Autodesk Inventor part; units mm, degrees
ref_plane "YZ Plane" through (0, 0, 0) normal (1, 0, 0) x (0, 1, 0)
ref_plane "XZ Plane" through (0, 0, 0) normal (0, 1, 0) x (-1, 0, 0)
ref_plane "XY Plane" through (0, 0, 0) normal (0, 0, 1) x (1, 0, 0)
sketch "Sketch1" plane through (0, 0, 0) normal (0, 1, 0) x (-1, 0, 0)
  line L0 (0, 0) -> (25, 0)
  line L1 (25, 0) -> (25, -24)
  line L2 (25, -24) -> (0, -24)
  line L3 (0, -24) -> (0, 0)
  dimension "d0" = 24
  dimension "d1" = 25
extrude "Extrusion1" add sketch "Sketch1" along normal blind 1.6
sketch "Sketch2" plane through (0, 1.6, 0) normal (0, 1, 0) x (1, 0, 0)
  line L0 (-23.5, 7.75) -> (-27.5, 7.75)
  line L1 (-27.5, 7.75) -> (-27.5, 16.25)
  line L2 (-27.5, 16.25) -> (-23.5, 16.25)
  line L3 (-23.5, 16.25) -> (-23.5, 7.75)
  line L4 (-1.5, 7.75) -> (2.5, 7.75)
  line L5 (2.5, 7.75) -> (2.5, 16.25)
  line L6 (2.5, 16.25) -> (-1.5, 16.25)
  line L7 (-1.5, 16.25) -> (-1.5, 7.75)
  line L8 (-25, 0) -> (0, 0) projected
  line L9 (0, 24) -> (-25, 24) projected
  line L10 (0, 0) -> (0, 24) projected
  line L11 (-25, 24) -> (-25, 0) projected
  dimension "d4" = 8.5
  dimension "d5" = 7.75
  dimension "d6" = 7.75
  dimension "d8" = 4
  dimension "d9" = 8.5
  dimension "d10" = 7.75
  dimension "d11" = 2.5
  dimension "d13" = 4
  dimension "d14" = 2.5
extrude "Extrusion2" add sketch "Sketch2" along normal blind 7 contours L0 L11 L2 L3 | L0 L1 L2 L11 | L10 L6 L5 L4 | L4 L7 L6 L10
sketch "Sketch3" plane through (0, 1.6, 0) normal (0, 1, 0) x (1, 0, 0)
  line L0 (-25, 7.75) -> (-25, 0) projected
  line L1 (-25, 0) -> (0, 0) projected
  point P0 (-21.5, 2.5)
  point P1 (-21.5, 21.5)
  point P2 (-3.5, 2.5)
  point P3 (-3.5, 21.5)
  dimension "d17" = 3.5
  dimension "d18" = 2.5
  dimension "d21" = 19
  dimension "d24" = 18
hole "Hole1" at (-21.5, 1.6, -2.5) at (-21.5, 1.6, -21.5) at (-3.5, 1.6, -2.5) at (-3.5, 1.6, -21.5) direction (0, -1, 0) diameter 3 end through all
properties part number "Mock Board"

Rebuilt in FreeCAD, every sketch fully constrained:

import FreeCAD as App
import Part
import Sketcher
Q = App.Units.Quantity


def add_polygon(sketch, points):
    """Adds a closed chain of lines whose ends are joined by coincident constraints."""
    first, n = sketch.GeometryCount, len(points)
    for a, b in zip(points, points[1:] + points[:1]):
        sketch.addGeometry(Part.LineSegment(App.Vector(*a, 0), App.Vector(*b, 0)), False)
    for i in range(n):
        sketch.addConstraint(Sketcher.Constraint("Coincident", first + i, 2, first + (i + 1) % n, 1))

doc = App.newDocument("Part")
body = doc.addObject("PartDesign::Body", "Body")

# Sketch on XZ plane
sketch1 = doc.addObject("Sketcher::SketchObject", "Sketch")
body.addObject(sketch1)
sketch1.AttachmentSupport = (doc.XZ_Plane, [""])
sketch1.MapMode = "FlatFace"
add_polygon(sketch1, [(-25, 0), (0, 0), (0, -24), (-25, -24)])  # lines 0-3
sketch1.addConstraint([
    Sketcher.Constraint("Horizontal", 0),
    Sketcher.Constraint("Vertical", 1),
    Sketcher.Constraint("Horizontal", 2),
    Sketcher.Constraint("Vertical", 3),
    Sketcher.Constraint("Coincident", 0, 2, -1, 1),
    Sketcher.Constraint("DistanceX", 0, 1, 0, 2, Q("25 mm")),
    Sketcher.Constraint("DistanceY", 1, 2, 1, 1, Q("24 mm")),
])
pad1 = doc.addObject("PartDesign::Pad", "Pad")
body.addObject(pad1)
pad1.Profile = sketch1
pad1.Length = 1.6
pad1.Reversed = True

# Sketch on XZ plane
sketch2 = doc.addObject("Sketcher::SketchObject", "Sketch001")
body.addObject(sketch2)
sketch2.AttachmentSupport = (doc.XZ_Plane, [""])
sketch2.MapMode = "FlatFace"
sketch2.AttachmentOffset = App.Placement(App.Vector(0, 0, -1.6), App.Rotation())
add_polygon(sketch2, [(-23.5, -7.8), (-23.5, -16.2), (-27.5, -16.2), (-27.5, -7.8)])  # lines 0-3
add_polygon(sketch2, [(2.5, -16.2), (-1.5, -16.2), (-1.5, -7.8), (2.5, -7.8)])  # lines 4-7
sketch2.addConstraint([
    Sketcher.Constraint("Vertical", 0),
    Sketcher.Constraint("Horizontal", 1),
    Sketcher.Constraint("Vertical", 2),
    Sketcher.Constraint("Horizontal", 3),
    Sketcher.Constraint("Horizontal", 4),
    Sketcher.Constraint("Vertical", 5),
    Sketcher.Constraint("Horizontal", 6),
    Sketcher.Constraint("Vertical", 7),
    Sketcher.Constraint("Horizontal", 1, 2, 4, 2),
    Sketcher.Constraint("Horizontal", 3, 2, 5, 2),
    Sketcher.Constraint("Equal", 3, 4),
    Sketcher.Constraint("DistanceX", 1, 2, 1, 1, Q("4 mm")),
    Sketcher.Constraint("DistanceY", 0, 2, 0, 1, Q("8.5 mm")),
    Sketcher.Constraint("DistanceX", -1, 1, 6, 2, Q("2.5 mm")),
    Sketcher.Constraint("DistanceY", 2, 2, -1, 1, Q("7.75 mm")),
    Sketcher.Constraint("DistanceX", 0, 2, 4, 2, Q("22 mm")),
])
pad2 = doc.addObject("PartDesign::Pad", "Pad001")
body.addObject(pad2)
pad2.Profile = sketch2
pad2.Length = 7
pad2.Reversed = True

# Sketch on XZ plane
sketch3 = doc.addObject("Sketcher::SketchObject", "Sketch002")
body.addObject(sketch3)
sketch3.AttachmentSupport = (doc.XZ_Plane, [""])
sketch3.MapMode = "FlatFace"
sketch3.AttachmentOffset = App.Placement(App.Vector(0, 0, -1.6), App.Rotation())
sketch3.addGeometry([
    Part.Circle(App.Vector(-21.5, -2.5, 0), App.Vector(0, 0, 1), 1.5),
    Part.Circle(App.Vector(-21.5, -21.5, 0), App.Vector(0, 0, 1), 1.5),
    Part.Circle(App.Vector(-3.5, -2.5, 0), App.Vector(0, 0, 1), 1.5),
    Part.Circle(App.Vector(-3.5, -21.5, 0), App.Vector(0, 0, 1), 1.5),
], False)
sketch3.addConstraint([
    Sketcher.Constraint("Equal", 0, 1),
    Sketcher.Constraint("Equal", 1, 2),
    Sketcher.Constraint("Equal", 2, 3),
    Sketcher.Constraint("Horizontal", 0, 3, 2, 3),
    Sketcher.Constraint("Horizontal", 1, 3, 3, 3),
    Sketcher.Constraint("Vertical", 0, 3, 1, 3),
    Sketcher.Constraint("Vertical", 2, 3, 3, 3),
    Sketcher.Constraint("Diameter", 0, Q("3 mm")),
    Sketcher.Constraint("DistanceY", 1, 3, 0, 3, Q("19 mm")),
    Sketcher.Constraint("DistanceX", 0, 3, 2, 3, Q("18 mm")),
    Sketcher.Constraint("DistanceX", 0, 3, -1, 1, Q("21.5 mm")),
    Sketcher.Constraint("DistanceY", 0, 3, -1, 1, Q("2.5 mm")),
])
doc.recompute()
hole = doc.addObject("PartDesign::Hole", "Hole")
body.addObject(hole)
hole.Profile = sketch3
hole.ThreadType = "None"
hole.Diameter = 3
hole.DepthType = "ThroughAll"
hole.Reversed = True

doc.recompute()
